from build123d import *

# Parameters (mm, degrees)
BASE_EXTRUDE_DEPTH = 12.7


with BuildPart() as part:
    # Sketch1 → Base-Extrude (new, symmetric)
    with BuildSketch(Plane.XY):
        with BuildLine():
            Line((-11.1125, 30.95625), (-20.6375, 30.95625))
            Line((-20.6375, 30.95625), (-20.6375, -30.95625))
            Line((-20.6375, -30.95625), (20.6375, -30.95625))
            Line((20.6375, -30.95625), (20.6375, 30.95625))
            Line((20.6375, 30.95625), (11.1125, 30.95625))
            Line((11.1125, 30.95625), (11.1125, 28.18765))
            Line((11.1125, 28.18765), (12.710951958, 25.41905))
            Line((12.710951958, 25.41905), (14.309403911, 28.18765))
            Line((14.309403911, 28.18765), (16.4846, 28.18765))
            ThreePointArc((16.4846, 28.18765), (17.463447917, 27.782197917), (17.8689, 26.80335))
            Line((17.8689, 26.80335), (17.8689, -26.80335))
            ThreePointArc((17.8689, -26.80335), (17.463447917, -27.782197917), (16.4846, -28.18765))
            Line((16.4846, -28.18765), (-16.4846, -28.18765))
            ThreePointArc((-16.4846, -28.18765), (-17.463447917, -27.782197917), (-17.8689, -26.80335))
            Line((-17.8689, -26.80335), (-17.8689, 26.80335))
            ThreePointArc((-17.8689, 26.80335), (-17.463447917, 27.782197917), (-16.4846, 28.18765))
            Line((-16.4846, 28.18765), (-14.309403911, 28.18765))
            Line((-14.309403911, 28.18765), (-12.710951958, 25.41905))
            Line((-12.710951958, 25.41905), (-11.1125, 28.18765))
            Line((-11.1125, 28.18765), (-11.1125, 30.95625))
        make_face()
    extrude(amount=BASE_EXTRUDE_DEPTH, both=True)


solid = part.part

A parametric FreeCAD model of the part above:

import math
import FreeCAD as App
import Part
import Sketcher
from FreeCAD import Vector
Q = App.Units.Quantity

doc = App.newDocument("Part")
body = doc.addObject("PartDesign::Body", "Body")

# Sketch on XY plane
sketch1 = body.newObject("Sketcher::SketchObject", "Sketch")
sketch1.AttachmentSupport = (doc.getObject("XY_Plane"), [""])
sketch1.MapMode = "FlatFace"
sketch1.addGeometry([
    Part.LineSegment(Vector(-11.1, 31, 0), Vector(-20.6, 31, 0)),  # 0
    Part.LineSegment(Vector(-20.6, 31, 0), Vector(-20.6, -31, 0)),  # 1
    Part.LineSegment(Vector(-20.6, -31, 0), Vector(20.6, -31, 0)),  # 2
    Part.LineSegment(Vector(20.6, -31, 0), Vector(20.6, 31, 0)),  # 3
    Part.LineSegment(Vector(20.6, 31, 0), Vector(11.1, 31, 0)),  # 4
    Part.LineSegment(Vector(11.1, 31, 0), Vector(11.1, 28.2, 0)),  # 5
    Part.LineSegment(Vector(11.1, 28.2, 0), Vector(12.7, 25.4, 0)),  # 6
    Part.LineSegment(Vector(12.7, 25.4, 0), Vector(14.3, 28.2, 0)),  # 7
    Part.LineSegment(Vector(14.3, 28.2, 0), Vector(16.5, 28.2, 0)),  # 8
    Part.ArcOfCircle(Part.Circle(Vector(16.5, 26.8, 0), Vector(0, 0, 1), 1.4), math.radians(0), math.radians(90)),  # 9
    Part.LineSegment(Vector(17.9, 26.8, 0), Vector(17.9, -26.8, 0)),  # 10
    Part.ArcOfCircle(Part.Circle(Vector(16.5, -26.8, 0), Vector(0, 0, 1), 1.4), math.radians(-90), math.radians(0)),  # 11
    Part.LineSegment(Vector(16.5, -28.2, 0), Vector(-16.5, -28.2, 0)),  # 12
    Part.ArcOfCircle(Part.Circle(Vector(-16.5, -26.8, 0), Vector(0, 0, 1), 1.4), math.radians(-180), math.radians(-90)),  # 13
    Part.LineSegment(Vector(-17.9, -26.8, 0), Vector(-17.9, 26.8, 0)),  # 14
    Part.ArcOfCircle(Part.Circle(Vector(-16.5, 26.8, 0), Vector(0, 0, 1), 1.4), math.radians(90), math.radians(180)),  # 15
    Part.LineSegment(Vector(-16.5, 28.2, 0), Vector(-14.3, 28.2, 0)),  # 16
    Part.LineSegment(Vector(-14.3, 28.2, 0), Vector(-12.7, 25.4, 0)),  # 17
    Part.LineSegment(Vector(-12.7, 25.4, 0), Vector(-11.1, 28.2, 0)),  # 18
    Part.LineSegment(Vector(-11.1, 28.2, 0), Vector(-11.1, 31, 0)),  # 19
], False)
sketch1.addConstraint([
    Sketcher.Constraint("Coincident", 0, 2, 1, 1),
    Sketcher.Constraint("Coincident", 1, 2, 2, 1),
    Sketcher.Constraint("Coincident", 2, 2, 3, 1),
    Sketcher.Constraint("Coincident", 3, 2, 4, 1),
    Sketcher.Constraint("Coincident", 4, 2, 5, 1),
    Sketcher.Constraint("Coincident", 5, 2, 6, 1),
    Sketcher.Constraint("Coincident", 6, 2, 7, 1),
    Sketcher.Constraint("Coincident", 7, 2, 8, 1),
    Sketcher.Constraint("Tangent", 8, 2, 9, 2),
    Sketcher.Constraint("Tangent", 9, 1, 10, 1),
    Sketcher.Constraint("Tangent", 10, 2, 11, 2),
    Sketcher.Constraint("Tangent", 11, 1, 12, 1),
    Sketcher.Constraint("Tangent", 12, 2, 13, 2),
    Sketcher.Constraint("Tangent", 13, 1, 14, 1),
    Sketcher.Constraint("Tangent", 14, 2, 15, 2),
    Sketcher.Constraint("Tangent", 15, 1, 16, 1),
    Sketcher.Constraint("Coincident", 16, 2, 17, 1),
    Sketcher.Constraint("Coincident", 17, 2, 18, 1),
    Sketcher.Constraint("Coincident", 18, 2, 19, 1),
    Sketcher.Constraint("Coincident", 19, 2, 0, 1),
    Sketcher.Constraint("Horizontal", 0),
    Sketcher.Constraint("Vertical", 1),
    Sketcher.Constraint("Horizontal", 2),
    Sketcher.Constraint("Vertical", 3),
    Sketcher.Constraint("Horizontal", 4),
    Sketcher.Constraint("Vertical", 5),
    Sketcher.Constraint("Horizontal", 8),
    Sketcher.Constraint("Vertical", 10),
    Sketcher.Constraint("Horizontal", 12),
    Sketcher.Constraint("Vertical", 14),
    Sketcher.Constraint("Horizontal", 16),
    Sketcher.Constraint("Vertical", 19),
    Sketcher.Constraint("Equal", 9, 11),
    Sketcher.Constraint("Equal", 11, 13),
    Sketcher.Constraint("Equal", 13, 15),
    Sketcher.Constraint("Symmetric", 9, 3, 13, 3, -1, 1),
    Sketcher.Constraint("Symmetric", 0, 2, 2, 2, -1, 1),
    Sketcher.Constraint("Symmetric", 7, 2, 16, 2, -2),
    Sketcher.Constraint("Symmetric", 6, 2, 17, 2, -2),
    Sketcher.Constraint("Symmetric", 5, 2, 18, 2, -2),
    Sketcher.Constraint("Parallel", 6, 17),
    Sketcher.Constraint("Horizontal", 0, 2, 3, 2),
    Sketcher.Constraint("Horizontal", 5, 2, 7, 2),
    Sketcher.Constraint("Angle", 6, Q("-60 deg")),
    Sketcher.Constraint("Radius", 9, Q("0.0545 in")),
    Sketcher.Constraint("DistanceX", 0, 2, 0, 1, Q("0.375 in")),
    Sketcher.Constraint("DistanceX", 2, 1, 2, 2, Q("1.625 in")),
    Sketcher.Constraint("DistanceX", 12, 2, 12, 1, Q("1.298 in")),
    Sketcher.Constraint("DistanceY", 1, 2, 1, 1, Q("2.4375 in")),
    Sketcher.Constraint("DistanceY", 5, 2, 5, 1, Q("0.109 in")),
    Sketcher.Constraint("DistanceY", 6, 2, 5, 2, Q("0.109 in")),
])
pad1 = body.newObject("PartDesign::Pad", "Pad")
pad1.Profile = sketch1
pad1.Length = Q("1 in")
pad1.Midplane = True

doc.recompute()
